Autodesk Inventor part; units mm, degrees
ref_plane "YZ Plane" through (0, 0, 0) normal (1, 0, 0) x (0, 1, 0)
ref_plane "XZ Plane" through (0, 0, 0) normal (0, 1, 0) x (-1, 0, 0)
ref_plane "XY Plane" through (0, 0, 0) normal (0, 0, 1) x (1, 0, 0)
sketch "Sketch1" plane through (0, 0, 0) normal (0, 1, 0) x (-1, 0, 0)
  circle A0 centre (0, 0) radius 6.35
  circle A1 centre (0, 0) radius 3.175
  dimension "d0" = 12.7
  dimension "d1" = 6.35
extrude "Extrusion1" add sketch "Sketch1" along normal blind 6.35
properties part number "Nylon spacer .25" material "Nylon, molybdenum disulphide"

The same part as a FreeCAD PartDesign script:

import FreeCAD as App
import Part
import Sketcher

V = App.Vector
Q = App.Units.Quantity

doc = App.newDocument("Part")
params = doc.addObject("Spreadsheet::Sheet", "Params")
for row, (alias, value) in enumerate([
    ("sketch1_diameter", "0.5 in"),
    ("sketch1_diameter2", "0.25 in"),
    ("pad1_length", "0.25 in"),
], start=1):
    params.set(f"A{row}", alias)
    params.set(f"B{row}", "=" + value)
    params.setAlias(f"B{row}", alias)

body = doc.addObject("PartDesign::Body", "Body")

sketch1 = body.newObject("Sketcher::SketchObject", "Sketch")
sketch1.AttachmentSupport = (doc.getObject("XZ_Plane"), [""])
sketch1.MapMode = "FlatFace"
sketch1.addGeometry(Part.Circle(V(0, 0, 0), V(0, 0, 1), 6.35), False)
sketch1.addGeometry(Part.Circle(V(0, 0, 0), V(0, 0, 1), 3.175), False)
sketch1.addConstraint(Sketcher.Constraint("Coincident", 0, 3, -1, 1))
sketch1.addConstraint(Sketcher.Constraint("Coincident", 1, 3, -1, 1))
sketch1.addConstraint(Sketcher.Constraint("Diameter", 0, Q("0.5 in")))
sketch1.addConstraint(Sketcher.Constraint("Diameter", 1, Q("0.25 in")))
sketch1.setExpression("Constraints[2]", "Params.sketch1_diameter")
sketch1.setExpression("Constraints[3]", "Params.sketch1_diameter2")
pad1 = body.newObject("PartDesign::Pad", "Pad")
pad1.Profile = sketch1
pad1.setExpression("Length", "Params.pad1_length")
pad1.Reversed = True

doc.recompute()
